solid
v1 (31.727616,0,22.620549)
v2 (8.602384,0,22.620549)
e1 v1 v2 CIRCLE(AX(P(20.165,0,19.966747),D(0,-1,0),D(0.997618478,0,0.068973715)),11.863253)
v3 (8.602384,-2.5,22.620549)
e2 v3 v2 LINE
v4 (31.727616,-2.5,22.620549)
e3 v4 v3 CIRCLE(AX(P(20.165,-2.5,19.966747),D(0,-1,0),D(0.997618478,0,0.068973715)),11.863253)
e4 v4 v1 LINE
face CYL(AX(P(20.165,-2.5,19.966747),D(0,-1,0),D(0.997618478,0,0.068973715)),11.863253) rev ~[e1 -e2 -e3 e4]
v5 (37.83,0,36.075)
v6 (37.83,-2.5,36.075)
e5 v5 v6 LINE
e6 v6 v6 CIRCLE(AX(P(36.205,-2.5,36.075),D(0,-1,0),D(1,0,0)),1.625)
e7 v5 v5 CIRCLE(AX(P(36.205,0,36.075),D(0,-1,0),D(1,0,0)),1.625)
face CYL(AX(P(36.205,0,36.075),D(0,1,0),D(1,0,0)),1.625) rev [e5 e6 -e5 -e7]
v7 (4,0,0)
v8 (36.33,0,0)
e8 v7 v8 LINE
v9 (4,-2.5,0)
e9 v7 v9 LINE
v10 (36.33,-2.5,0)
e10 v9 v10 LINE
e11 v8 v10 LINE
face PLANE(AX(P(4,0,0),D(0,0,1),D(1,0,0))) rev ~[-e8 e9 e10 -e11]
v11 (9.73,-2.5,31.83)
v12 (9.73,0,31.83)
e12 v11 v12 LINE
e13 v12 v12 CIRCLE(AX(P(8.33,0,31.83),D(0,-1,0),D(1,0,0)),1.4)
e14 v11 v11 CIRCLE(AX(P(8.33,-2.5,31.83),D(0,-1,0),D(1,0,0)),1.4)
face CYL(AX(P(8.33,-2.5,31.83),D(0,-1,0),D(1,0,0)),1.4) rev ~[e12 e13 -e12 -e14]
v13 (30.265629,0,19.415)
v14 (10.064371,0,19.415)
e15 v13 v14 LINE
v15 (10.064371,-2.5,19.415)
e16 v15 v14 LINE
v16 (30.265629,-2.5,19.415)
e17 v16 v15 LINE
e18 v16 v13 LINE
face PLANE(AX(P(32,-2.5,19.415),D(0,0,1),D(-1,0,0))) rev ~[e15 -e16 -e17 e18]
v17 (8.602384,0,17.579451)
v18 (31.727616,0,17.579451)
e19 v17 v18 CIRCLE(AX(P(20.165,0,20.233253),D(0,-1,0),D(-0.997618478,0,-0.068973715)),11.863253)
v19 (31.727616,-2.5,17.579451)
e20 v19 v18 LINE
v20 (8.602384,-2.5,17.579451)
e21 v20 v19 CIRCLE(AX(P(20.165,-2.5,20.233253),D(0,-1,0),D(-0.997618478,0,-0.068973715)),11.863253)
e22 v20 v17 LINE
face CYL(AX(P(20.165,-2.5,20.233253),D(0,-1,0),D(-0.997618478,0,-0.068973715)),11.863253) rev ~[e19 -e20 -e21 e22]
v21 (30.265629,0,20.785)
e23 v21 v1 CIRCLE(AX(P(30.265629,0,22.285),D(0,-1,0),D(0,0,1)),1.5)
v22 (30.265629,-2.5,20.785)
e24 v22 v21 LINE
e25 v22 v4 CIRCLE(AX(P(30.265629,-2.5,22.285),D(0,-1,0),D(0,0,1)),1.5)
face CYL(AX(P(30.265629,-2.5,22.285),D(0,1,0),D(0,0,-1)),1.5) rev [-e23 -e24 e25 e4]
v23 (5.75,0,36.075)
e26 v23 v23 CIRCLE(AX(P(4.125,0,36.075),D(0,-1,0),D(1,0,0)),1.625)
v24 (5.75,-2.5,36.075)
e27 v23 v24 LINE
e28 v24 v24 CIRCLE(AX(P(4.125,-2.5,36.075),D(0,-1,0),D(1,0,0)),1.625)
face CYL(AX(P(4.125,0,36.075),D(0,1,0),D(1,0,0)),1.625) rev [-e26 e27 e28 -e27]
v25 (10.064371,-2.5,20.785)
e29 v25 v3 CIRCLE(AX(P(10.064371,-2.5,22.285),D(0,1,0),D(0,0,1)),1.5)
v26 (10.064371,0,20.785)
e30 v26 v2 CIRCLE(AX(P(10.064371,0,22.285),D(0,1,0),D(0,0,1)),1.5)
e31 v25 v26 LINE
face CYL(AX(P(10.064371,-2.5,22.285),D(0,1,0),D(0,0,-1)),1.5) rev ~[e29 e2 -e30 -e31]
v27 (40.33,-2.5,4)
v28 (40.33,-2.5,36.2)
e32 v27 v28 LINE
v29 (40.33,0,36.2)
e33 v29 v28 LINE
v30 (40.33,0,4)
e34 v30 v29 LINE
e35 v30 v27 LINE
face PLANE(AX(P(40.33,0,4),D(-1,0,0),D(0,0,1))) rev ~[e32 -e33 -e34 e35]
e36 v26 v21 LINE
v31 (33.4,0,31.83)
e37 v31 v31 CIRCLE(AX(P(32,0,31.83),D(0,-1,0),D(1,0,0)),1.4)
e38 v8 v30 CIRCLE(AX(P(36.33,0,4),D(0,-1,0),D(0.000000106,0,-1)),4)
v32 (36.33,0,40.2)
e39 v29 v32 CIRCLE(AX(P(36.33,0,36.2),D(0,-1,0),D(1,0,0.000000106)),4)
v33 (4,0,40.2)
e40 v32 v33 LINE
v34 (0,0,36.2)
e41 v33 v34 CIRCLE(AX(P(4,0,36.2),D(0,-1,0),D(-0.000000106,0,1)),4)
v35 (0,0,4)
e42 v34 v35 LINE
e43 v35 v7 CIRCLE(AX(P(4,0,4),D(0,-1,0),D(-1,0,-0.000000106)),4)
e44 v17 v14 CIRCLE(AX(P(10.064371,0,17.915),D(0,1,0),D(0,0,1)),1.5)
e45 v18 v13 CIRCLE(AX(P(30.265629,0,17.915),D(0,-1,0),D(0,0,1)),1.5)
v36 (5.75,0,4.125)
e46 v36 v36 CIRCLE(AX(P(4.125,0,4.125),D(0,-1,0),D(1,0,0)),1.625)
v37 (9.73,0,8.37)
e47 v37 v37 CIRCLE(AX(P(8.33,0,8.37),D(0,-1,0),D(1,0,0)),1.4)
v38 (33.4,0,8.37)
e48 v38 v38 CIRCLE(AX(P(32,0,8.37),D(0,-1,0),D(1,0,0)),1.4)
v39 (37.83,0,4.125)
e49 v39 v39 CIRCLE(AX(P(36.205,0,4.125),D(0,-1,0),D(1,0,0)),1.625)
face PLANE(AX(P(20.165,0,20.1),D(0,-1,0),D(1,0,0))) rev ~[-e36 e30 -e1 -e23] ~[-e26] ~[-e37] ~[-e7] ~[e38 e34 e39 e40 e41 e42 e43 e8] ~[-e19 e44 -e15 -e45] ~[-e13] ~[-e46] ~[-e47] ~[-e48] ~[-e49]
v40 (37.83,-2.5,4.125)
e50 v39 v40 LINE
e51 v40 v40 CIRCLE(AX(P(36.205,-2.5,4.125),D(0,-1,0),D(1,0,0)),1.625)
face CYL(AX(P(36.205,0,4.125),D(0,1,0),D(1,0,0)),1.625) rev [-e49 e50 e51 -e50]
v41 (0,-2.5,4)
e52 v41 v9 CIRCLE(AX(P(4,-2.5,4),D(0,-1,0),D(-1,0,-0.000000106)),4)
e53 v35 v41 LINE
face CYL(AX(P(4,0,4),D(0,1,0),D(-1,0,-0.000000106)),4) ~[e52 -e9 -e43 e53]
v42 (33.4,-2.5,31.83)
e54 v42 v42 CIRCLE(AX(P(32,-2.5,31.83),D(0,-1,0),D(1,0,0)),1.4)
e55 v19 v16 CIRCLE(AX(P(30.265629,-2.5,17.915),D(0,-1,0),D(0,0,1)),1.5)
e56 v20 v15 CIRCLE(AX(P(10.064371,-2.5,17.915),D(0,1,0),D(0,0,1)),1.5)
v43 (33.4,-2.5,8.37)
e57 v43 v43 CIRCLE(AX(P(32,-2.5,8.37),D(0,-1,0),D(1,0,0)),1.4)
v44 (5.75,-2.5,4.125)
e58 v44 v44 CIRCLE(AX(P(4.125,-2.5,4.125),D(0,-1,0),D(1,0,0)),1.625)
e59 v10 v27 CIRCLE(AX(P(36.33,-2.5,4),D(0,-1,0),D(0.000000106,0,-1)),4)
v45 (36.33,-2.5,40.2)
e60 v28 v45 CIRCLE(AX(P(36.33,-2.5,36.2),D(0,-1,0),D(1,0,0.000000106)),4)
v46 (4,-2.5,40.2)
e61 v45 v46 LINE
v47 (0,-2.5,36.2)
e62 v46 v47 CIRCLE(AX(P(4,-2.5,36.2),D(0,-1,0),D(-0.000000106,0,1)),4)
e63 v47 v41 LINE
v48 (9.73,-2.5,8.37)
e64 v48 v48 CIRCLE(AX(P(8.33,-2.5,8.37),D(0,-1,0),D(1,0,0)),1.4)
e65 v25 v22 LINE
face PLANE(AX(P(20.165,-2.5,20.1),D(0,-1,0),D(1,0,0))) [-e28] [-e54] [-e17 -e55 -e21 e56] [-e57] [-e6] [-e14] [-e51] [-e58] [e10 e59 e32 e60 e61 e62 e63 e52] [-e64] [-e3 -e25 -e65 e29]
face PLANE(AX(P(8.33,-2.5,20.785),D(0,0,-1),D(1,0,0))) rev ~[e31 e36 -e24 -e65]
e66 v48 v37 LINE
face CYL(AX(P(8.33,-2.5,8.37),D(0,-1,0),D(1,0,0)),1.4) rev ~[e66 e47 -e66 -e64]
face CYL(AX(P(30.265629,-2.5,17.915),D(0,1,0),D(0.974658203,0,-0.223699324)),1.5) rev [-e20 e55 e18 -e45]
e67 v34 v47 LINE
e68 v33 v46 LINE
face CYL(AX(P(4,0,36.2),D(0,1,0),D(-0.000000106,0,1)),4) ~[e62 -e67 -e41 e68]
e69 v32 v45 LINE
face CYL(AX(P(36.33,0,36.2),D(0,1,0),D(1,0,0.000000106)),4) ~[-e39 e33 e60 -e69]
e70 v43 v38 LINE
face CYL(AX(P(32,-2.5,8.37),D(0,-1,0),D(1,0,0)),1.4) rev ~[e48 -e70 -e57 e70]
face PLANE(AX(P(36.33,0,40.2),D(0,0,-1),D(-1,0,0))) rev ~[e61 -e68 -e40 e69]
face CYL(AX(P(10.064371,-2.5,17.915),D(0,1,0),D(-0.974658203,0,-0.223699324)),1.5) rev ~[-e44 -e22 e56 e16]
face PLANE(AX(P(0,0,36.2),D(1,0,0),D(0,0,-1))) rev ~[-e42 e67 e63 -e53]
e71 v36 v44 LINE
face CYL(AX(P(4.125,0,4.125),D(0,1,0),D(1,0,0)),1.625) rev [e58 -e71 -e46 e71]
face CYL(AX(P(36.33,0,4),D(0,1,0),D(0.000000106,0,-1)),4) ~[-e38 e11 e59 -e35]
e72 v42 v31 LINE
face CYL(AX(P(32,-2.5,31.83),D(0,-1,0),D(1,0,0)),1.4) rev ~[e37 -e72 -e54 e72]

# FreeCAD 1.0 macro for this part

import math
import FreeCAD as App
import Part
import Sketcher

V = App.Vector
Q = App.Units.Quantity


def edges_at(feature, points):
    """Names of the edges that pass closest to the given points."""
    edges = feature.Shape.Edges
    near = lambda p: min(range(len(edges)), key=lambda i: edges[i].distToShape(Part.Vertex(*p))[0])
    return sorted({f"Edge{near(p) + 1}" for p in points})

doc = App.newDocument("Part")
params = doc.addObject("Spreadsheet::Sheet", "Params")
for row, (alias, value) in enumerate([
    ("sketch1_radius", "4 mm"),
    ("sketch1_diameter", "3.25 mm"),
    ("sketch1_height", "32.2 mm"),
    ("sketch1_width", "32.33 mm"),
    ("pad1_length", "2.5 mm"),
    ("sketch2_diameter", "2.8 mm"),
    ("sketch2_width", "23.67 mm"),
    ("fillet_radius", "1.5 mm"),
], start=1):
    params.set(f"A{row}", alias)
    params.set(f"B{row}", "=" + value)
    params.setAlias(f"B{row}", alias)

body = doc.addObject("PartDesign::Body", "Body")

# Sketch on XZ plane
sketch1 = doc.addObject("Sketcher::SketchObject", "Sketch")
body.addObject(sketch1)
sketch1.AttachmentSupport = (doc.XZ_Plane, [""])
sketch1.MapMode = "FlatFace"
sketch1.addGeometry([
    Part.ArcOfCircle(Part.Circle(V(4, 4, 0), V(0, 0, 1), 4), math.radians(-180), math.radians(-90)),  # 0
    Part.LineSegment(V(4, 0, 0), V(36.3, 0, 0)),  # 1
    Part.ArcOfCircle(Part.Circle(V(36.3, 4, 0), V(0, 0, 1), 4), math.radians(-90), math.radians(0)),  # 2
    Part.LineSegment(V(40.3, 4, 0), V(40.3, 36.2, 0)),  # 3
    Part.ArcOfCircle(Part.Circle(V(36.3, 36.2, 0), V(0, 0, 1), 4), math.radians(0), math.radians(90)),  # 4
    Part.LineSegment(V(36.3, 40.2, 0), V(4, 40.2, 0)),  # 5
    Part.ArcOfCircle(Part.Circle(V(4, 36.2, 0), V(0, 0, 1), 4), math.radians(90), math.radians(180)),  # 6
    Part.LineSegment(V(0, 36.2, 0), V(0, 4, 0)),  # 7
    Part.Circle(V(4.1, 4.1, 0), V(0, 0, 1), 1.6),  # 8
    Part.Circle(V(36.2, 4.1, 0), V(0, 0, 1), 1.6),  # 9
    Part.Circle(V(4.1, 36.1, 0), V(0, 0, 1), 1.6),  # 10
    Part.Circle(V(36.2, 36.1, 0), V(0, 0, 1), 1.6),  # 11
], False)
sketch1.addConstraint([
    Sketcher.Constraint("Tangent", 0, 2, 1, 1),
    Sketcher.Constraint("Tangent", 1, 2, 2, 1),
    Sketcher.Constraint("Tangent", 2, 2, 3, 1),
    Sketcher.Constraint("Tangent", 3, 2, 4, 1),
    Sketcher.Constraint("Tangent", 4, 2, 5, 1),
    Sketcher.Constraint("Tangent", 5, 2, 6, 1),
    Sketcher.Constraint("Tangent", 6, 2, 7, 1),
    Sketcher.Constraint("Tangent", 7, 2, 0, 1),
    Sketcher.Constraint("Horizontal", 1),
    Sketcher.Constraint("Vertical", 3),
    Sketcher.Constraint("Horizontal", 5),
    Sketcher.Constraint("Vertical", 7),
    Sketcher.Constraint("Equal", 0, 2),
    Sketcher.Constraint("Equal", 2, 4),
    Sketcher.Constraint("Equal", 4, 6),
    Sketcher.Constraint("Equal", 8, 9),
    Sketcher.Constraint("Equal", 9, 10),
    Sketcher.Constraint("Equal", 10, 11),
    Sketcher.Constraint("PointOnObject", 0, 2, -1),
    Sketcher.Constraint("PointOnObject", 6, 2, -2),
    Sketcher.Constraint("Horizontal", 8, 3, 9, 3),
    Sketcher.Constraint("Horizontal", 10, 3, 11, 3),
    Sketcher.Constraint("Vertical", 8, 3, 10, 3),
    Sketcher.Constraint("Vertical", 9, 3, 11, 3),
    Sketcher.Constraint("Radius", 0, Q("4 mm")),
    Sketcher.Constraint("Diameter", 8, Q("3.25 mm")),
    Sketcher.Constraint("DistanceY", 3, 1, 3, 2, Q("32.2 mm")),
    Sketcher.Constraint("DistanceX", 1, 1, 1, 2, Q("32.33 mm")),
    Sketcher.Constraint("DistanceX", 8, 3, 9, 3, Q("32.08 mm")),
    Sketcher.Constraint("DistanceY", 8, 3, 10, 3, Q("31.95 mm")),
    Sketcher.Constraint("DistanceX", -1, 1, 8, 3, Q("4.125 mm")),
    Sketcher.Constraint("DistanceY", -1, 1, 8, 3, Q("4.125 mm")),
])
sketch1.setExpression("Constraints[24]", "Params.sketch1_radius")
sketch1.setExpression("Constraints[25]", "Params.sketch1_diameter")
sketch1.setExpression("Constraints[26]", "Params.sketch1_height")
sketch1.setExpression("Constraints[27]", "Params.sketch1_width")
pad1 = doc.addObject("PartDesign::Pad", "Pad")
body.addObject(pad1)
pad1.Profile = sketch1
pad1.setExpression("Length", "Params.pad1_length")

# Sketch on XZ plane
sketch2 = doc.addObject("Sketcher::SketchObject", "Sketch001")
body.addObject(sketch2)
sketch2.AttachmentSupport = (doc.XZ_Plane, [""])
sketch2.MapMode = "FlatFace"
sketch2.AttachmentOffset = App.Placement(V(0, 0, 2.5), App.Rotation())
sketch2.addGeometry([
    Part.Circle(V(8.3, 31.8, 0), V(0, 0, 1), 1.4),  # 0
    Part.Circle(V(32, 31.8, 0), V(0, 0, 1), 1.4),  # 1
    Part.Circle(V(32, 8.4, 0), V(0, 0, 1), 1.4),  # 2
    Part.Circle(V(8.3, 8.4, 0), V(0, 0, 1), 1.4),  # 3
    Part.ArcOfCircle(Part.Circle(V(20.2, 20.2, 0), V(0, 0, 1), 11.9), math.radians(-176), math.radians(-4)),  # 4
    Part.LineSegment(V(32, 19.4, 0), V(8.3, 19.4, 0)),  # 5
    Part.LineSegment(V(8.3, 20.8, 0), V(32, 20.8, 0)),  # 6
    Part.ArcOfCircle(Part.Circle(V(20.2, 20, 0), V(0, 0, 1), 11.9), math.radians(4), math.radians(176)),  # 7
], False)
sketch2.addConstraint([
    Sketcher.Constraint("Coincident", 4, 1, 5, 2),
    Sketcher.Constraint("Coincident", 5, 1, 4, 2),
    Sketcher.Constraint("Coincident", 6, 1, 7, 2),
    Sketcher.Constraint("Coincident", 7, 1, 6, 2),
    Sketcher.Constraint("Horizontal", 5),
    Sketcher.Constraint("Horizontal", 6),
    Sketcher.Constraint("Equal", 0, 1),
    Sketcher.Constraint("Equal", 1, 2),
    Sketcher.Constraint("Equal", 2, 3),
    Sketcher.Constraint("Equal", 4, 7),
    Sketcher.Constraint("Horizontal", 0, 3, 1, 3),
    Sketcher.Constraint("Horizontal", 2, 3, 3, 3),
    Sketcher.Constraint("Vertical", 1, 3, 2, 3),
    Sketcher.Constraint("Vertical", 0, 3, 3, 3),
    Sketcher.Constraint("Vertical", 4, 3, 7, 3),
    Sketcher.Constraint("Vertical", 3, 3, 4, 1),
    Sketcher.Constraint("Vertical", 2, 3, 5, 1),
    Sketcher.Constraint("Vertical", 4, 1, 6, 1),
    Sketcher.Constraint("Diameter", 0, Q("2.8 mm")),
    Sketcher.Constraint("DistanceX", -1, 1, 1, 3, Q("32 mm")),
    Sketcher.Constraint("DistanceX", 5, 2, 5, 1, Q("23.67 mm")),
    Sketcher.Constraint("DistanceY", -1, 1, 0, 3, Q("31.83 mm")),
    Sketcher.Constraint("DistanceY", -1, 1, 2, 3, Q("8.37 mm")),
    Sketcher.Constraint("DistanceY", 4, 1, 6, 1, Q("1.37 mm")),
    Sketcher.Constraint("DistanceY", -1, 1, 4, 1, Q("19.415 mm")),
    Sketcher.Constraint("Radius", 4, Q("11.863253 mm")),
])
sketch2.setExpression("Constraints[18]", "Params.sketch2_diameter")
sketch2.setExpression("Constraints[20]", "Params.sketch2_width")
pocket1 = doc.addObject("PartDesign::Pocket", "Pocket")
body.addObject(pocket1)
pocket1.Profile = sketch2
pocket1.Type = "ThroughAll"
doc.recompute()

fillet = doc.addObject("PartDesign::Fillet", "Fillet")
body.addObject(fillet)
fillet.Base = (pocket1, edges_at(pocket1, [
    (8.33, -1.25, 20.785),
    (32, -1.25, 20.785),
    (32, -1.25, 19.415),
    (8.33, -1.25, 19.415),
]))
fillet.setExpression("Radius", "Params.fillet_radius")

doc.recompute()
